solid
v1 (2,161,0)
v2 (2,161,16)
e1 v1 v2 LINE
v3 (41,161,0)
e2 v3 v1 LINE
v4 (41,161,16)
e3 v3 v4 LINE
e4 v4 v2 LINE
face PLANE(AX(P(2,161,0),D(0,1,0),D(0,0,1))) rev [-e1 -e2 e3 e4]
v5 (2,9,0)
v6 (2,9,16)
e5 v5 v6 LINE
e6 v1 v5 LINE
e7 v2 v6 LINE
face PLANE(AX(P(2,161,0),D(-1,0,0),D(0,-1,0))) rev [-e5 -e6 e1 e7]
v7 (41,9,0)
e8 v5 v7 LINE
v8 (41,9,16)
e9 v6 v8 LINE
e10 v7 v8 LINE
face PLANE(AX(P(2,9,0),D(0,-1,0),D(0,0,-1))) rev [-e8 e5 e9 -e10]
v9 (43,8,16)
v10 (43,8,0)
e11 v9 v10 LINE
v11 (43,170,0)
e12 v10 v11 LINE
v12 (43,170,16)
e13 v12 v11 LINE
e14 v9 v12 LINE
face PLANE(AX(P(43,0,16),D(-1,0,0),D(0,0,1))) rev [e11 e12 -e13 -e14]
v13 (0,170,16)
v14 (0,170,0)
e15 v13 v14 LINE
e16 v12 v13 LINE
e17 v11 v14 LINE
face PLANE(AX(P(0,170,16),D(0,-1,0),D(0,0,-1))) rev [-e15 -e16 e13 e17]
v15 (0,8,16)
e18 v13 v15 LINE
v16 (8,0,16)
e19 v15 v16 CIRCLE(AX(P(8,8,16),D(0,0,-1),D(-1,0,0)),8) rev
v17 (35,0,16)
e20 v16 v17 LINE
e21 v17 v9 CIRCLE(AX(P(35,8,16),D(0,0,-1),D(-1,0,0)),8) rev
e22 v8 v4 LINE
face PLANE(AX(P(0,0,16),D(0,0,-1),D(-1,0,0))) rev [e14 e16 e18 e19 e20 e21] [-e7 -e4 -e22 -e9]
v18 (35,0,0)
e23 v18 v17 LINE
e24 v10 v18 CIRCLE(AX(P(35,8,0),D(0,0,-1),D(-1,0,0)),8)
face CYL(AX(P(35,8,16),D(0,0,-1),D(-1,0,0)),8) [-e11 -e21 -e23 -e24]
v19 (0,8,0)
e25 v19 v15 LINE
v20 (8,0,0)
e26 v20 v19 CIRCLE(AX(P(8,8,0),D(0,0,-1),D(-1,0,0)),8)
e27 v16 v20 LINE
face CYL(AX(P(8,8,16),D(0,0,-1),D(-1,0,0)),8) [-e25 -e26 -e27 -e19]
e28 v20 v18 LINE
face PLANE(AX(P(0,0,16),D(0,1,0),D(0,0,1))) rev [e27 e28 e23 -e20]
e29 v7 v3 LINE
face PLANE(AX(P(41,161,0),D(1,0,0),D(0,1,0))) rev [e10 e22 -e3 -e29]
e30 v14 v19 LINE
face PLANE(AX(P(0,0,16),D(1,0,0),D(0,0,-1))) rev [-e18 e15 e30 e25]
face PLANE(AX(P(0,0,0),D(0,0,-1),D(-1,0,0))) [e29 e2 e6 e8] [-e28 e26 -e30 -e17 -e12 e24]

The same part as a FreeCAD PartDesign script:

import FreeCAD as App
import Part
import Sketcher


def edges_at(feature, points):
    """Names of the edges that pass closest to the given points."""
    edges = feature.Shape.Edges
    near = lambda p: min(range(len(edges)), key=lambda i: edges[i].distToShape(Part.Vertex(*p))[0])
    return sorted({f"Edge{near(p) + 1}" for p in points})

doc = App.newDocument("Part")
body = doc.addObject("PartDesign::Body", "Body")

# Sketch on XY plane
sketch1 = body.newObject("Sketcher::SketchObject", "Sketch")
sketch1.AttachmentSupport = (doc.getObject("XY_Plane"), [""])
sketch1.MapMode = "FlatFace"
sketch1.addGeometry(Part.LineSegment(App.Vector(0, 170, 0), App.Vector(0, 0, 0)), False)
sketch1.addGeometry(Part.LineSegment(App.Vector(0, 0, 0), App.Vector(43, 0, 0)), False)
sketch1.addGeometry(Part.LineSegment(App.Vector(43, 0, 0), App.Vector(43, 170, 0)), False)
sketch1.addGeometry(Part.LineSegment(App.Vector(43, 170, 0), App.Vector(0, 170, 0)), False)
sketch1.addConstraint(Sketcher.Constraint("Coincident", 0, 2, 1, 1))
sketch1.addConstraint(Sketcher.Constraint("Coincident", 1, 2, 2, 1))
sketch1.addConstraint(Sketcher.Constraint("Coincident", 2, 2, 3, 1))
sketch1.addConstraint(Sketcher.Constraint("Coincident", 3, 2, 0, 1))
sketch1.addConstraint(Sketcher.Constraint("Vertical", 0))
sketch1.addConstraint(Sketcher.Constraint("Horizontal", 1))
sketch1.addConstraint(Sketcher.Constraint("Vertical", 2))
sketch1.addConstraint(Sketcher.Constraint("Horizontal", 3))
sketch1.addConstraint(Sketcher.Constraint("Coincident", 0, 2, -1, 1))
sketch1.addConstraint(Sketcher.Constraint("DistanceX", 1, 1, 1, 2, 43.0))
sketch1.addConstraint(Sketcher.Constraint("DistanceY", 0, 2, 0, 1, 170.0))
pad1 = body.newObject("PartDesign::Pad", "Pad")
pad1.Profile = sketch1
pad1.Length = 16

# Sketch on XY plane
sketch2 = body.newObject("Sketcher::SketchObject", "Sketch001")
sketch2.AttachmentSupport = (doc.getObject("XY_Plane"), [""])
sketch2.MapMode = "FlatFace"
sketch2.AttachmentOffset = App.Placement(App.Vector(0, 0, 16), App.Rotation())
sketch2.addGeometry(Part.LineSegment(App.Vector(2, 161, 0), App.Vector(2, 9, 0)), False)
sketch2.addGeometry(Part.LineSegment(App.Vector(2, 9, 0), App.Vector(41, 9, 0)), False)
sketch2.addGeometry(Part.LineSegment(App.Vector(41, 9, 0), App.Vector(41, 161, 0)), False)
sketch2.addGeometry(Part.LineSegment(App.Vector(41, 161, 0), App.Vector(2, 161, 0)), False)
sketch2.addConstraint(Sketcher.Constraint("Coincident", 0, 2, 1, 1))
sketch2.addConstraint(Sketcher.Constraint("Coincident", 1, 2, 2, 1))
sketch2.addConstraint(Sketcher.Constraint("Coincident", 2, 2, 3, 1))
sketch2.addConstraint(Sketcher.Constraint("Coincident", 3, 2, 0, 1))
sketch2.addConstraint(Sketcher.Constraint("Vertical", 0))
sketch2.addConstraint(Sketcher.Constraint("Horizontal", 1))
sketch2.addConstraint(Sketcher.Constraint("Vertical", 2))
sketch2.addConstraint(Sketcher.Constraint("Horizontal", 3))
sketch2.addConstraint(Sketcher.Constraint("DistanceX", 1, 1, 1, 2, 39.0))
sketch2.addConstraint(Sketcher.Constraint("DistanceY", 0, 2, 0, 1, 152.0))
sketch2.addConstraint(Sketcher.Constraint("DistanceX", -1, 1, 0, 2, 2.0))
sketch2.addConstraint(Sketcher.Constraint("DistanceY", -1, 1, 0, 2, 9.0))
pocket1 = body.newObject("PartDesign::Pocket", "Pocket")
pocket1.Profile = sketch2
pocket1.Type = "ThroughAll"
doc.recompute()

fillet = body.newObject("PartDesign::Fillet", "Fillet")
fillet.Base = (pocket1, edges_at(pocket1, [(43, 0, 8), (0, 0, 8)]))
fillet.Radius = 8

doc.recompute()
